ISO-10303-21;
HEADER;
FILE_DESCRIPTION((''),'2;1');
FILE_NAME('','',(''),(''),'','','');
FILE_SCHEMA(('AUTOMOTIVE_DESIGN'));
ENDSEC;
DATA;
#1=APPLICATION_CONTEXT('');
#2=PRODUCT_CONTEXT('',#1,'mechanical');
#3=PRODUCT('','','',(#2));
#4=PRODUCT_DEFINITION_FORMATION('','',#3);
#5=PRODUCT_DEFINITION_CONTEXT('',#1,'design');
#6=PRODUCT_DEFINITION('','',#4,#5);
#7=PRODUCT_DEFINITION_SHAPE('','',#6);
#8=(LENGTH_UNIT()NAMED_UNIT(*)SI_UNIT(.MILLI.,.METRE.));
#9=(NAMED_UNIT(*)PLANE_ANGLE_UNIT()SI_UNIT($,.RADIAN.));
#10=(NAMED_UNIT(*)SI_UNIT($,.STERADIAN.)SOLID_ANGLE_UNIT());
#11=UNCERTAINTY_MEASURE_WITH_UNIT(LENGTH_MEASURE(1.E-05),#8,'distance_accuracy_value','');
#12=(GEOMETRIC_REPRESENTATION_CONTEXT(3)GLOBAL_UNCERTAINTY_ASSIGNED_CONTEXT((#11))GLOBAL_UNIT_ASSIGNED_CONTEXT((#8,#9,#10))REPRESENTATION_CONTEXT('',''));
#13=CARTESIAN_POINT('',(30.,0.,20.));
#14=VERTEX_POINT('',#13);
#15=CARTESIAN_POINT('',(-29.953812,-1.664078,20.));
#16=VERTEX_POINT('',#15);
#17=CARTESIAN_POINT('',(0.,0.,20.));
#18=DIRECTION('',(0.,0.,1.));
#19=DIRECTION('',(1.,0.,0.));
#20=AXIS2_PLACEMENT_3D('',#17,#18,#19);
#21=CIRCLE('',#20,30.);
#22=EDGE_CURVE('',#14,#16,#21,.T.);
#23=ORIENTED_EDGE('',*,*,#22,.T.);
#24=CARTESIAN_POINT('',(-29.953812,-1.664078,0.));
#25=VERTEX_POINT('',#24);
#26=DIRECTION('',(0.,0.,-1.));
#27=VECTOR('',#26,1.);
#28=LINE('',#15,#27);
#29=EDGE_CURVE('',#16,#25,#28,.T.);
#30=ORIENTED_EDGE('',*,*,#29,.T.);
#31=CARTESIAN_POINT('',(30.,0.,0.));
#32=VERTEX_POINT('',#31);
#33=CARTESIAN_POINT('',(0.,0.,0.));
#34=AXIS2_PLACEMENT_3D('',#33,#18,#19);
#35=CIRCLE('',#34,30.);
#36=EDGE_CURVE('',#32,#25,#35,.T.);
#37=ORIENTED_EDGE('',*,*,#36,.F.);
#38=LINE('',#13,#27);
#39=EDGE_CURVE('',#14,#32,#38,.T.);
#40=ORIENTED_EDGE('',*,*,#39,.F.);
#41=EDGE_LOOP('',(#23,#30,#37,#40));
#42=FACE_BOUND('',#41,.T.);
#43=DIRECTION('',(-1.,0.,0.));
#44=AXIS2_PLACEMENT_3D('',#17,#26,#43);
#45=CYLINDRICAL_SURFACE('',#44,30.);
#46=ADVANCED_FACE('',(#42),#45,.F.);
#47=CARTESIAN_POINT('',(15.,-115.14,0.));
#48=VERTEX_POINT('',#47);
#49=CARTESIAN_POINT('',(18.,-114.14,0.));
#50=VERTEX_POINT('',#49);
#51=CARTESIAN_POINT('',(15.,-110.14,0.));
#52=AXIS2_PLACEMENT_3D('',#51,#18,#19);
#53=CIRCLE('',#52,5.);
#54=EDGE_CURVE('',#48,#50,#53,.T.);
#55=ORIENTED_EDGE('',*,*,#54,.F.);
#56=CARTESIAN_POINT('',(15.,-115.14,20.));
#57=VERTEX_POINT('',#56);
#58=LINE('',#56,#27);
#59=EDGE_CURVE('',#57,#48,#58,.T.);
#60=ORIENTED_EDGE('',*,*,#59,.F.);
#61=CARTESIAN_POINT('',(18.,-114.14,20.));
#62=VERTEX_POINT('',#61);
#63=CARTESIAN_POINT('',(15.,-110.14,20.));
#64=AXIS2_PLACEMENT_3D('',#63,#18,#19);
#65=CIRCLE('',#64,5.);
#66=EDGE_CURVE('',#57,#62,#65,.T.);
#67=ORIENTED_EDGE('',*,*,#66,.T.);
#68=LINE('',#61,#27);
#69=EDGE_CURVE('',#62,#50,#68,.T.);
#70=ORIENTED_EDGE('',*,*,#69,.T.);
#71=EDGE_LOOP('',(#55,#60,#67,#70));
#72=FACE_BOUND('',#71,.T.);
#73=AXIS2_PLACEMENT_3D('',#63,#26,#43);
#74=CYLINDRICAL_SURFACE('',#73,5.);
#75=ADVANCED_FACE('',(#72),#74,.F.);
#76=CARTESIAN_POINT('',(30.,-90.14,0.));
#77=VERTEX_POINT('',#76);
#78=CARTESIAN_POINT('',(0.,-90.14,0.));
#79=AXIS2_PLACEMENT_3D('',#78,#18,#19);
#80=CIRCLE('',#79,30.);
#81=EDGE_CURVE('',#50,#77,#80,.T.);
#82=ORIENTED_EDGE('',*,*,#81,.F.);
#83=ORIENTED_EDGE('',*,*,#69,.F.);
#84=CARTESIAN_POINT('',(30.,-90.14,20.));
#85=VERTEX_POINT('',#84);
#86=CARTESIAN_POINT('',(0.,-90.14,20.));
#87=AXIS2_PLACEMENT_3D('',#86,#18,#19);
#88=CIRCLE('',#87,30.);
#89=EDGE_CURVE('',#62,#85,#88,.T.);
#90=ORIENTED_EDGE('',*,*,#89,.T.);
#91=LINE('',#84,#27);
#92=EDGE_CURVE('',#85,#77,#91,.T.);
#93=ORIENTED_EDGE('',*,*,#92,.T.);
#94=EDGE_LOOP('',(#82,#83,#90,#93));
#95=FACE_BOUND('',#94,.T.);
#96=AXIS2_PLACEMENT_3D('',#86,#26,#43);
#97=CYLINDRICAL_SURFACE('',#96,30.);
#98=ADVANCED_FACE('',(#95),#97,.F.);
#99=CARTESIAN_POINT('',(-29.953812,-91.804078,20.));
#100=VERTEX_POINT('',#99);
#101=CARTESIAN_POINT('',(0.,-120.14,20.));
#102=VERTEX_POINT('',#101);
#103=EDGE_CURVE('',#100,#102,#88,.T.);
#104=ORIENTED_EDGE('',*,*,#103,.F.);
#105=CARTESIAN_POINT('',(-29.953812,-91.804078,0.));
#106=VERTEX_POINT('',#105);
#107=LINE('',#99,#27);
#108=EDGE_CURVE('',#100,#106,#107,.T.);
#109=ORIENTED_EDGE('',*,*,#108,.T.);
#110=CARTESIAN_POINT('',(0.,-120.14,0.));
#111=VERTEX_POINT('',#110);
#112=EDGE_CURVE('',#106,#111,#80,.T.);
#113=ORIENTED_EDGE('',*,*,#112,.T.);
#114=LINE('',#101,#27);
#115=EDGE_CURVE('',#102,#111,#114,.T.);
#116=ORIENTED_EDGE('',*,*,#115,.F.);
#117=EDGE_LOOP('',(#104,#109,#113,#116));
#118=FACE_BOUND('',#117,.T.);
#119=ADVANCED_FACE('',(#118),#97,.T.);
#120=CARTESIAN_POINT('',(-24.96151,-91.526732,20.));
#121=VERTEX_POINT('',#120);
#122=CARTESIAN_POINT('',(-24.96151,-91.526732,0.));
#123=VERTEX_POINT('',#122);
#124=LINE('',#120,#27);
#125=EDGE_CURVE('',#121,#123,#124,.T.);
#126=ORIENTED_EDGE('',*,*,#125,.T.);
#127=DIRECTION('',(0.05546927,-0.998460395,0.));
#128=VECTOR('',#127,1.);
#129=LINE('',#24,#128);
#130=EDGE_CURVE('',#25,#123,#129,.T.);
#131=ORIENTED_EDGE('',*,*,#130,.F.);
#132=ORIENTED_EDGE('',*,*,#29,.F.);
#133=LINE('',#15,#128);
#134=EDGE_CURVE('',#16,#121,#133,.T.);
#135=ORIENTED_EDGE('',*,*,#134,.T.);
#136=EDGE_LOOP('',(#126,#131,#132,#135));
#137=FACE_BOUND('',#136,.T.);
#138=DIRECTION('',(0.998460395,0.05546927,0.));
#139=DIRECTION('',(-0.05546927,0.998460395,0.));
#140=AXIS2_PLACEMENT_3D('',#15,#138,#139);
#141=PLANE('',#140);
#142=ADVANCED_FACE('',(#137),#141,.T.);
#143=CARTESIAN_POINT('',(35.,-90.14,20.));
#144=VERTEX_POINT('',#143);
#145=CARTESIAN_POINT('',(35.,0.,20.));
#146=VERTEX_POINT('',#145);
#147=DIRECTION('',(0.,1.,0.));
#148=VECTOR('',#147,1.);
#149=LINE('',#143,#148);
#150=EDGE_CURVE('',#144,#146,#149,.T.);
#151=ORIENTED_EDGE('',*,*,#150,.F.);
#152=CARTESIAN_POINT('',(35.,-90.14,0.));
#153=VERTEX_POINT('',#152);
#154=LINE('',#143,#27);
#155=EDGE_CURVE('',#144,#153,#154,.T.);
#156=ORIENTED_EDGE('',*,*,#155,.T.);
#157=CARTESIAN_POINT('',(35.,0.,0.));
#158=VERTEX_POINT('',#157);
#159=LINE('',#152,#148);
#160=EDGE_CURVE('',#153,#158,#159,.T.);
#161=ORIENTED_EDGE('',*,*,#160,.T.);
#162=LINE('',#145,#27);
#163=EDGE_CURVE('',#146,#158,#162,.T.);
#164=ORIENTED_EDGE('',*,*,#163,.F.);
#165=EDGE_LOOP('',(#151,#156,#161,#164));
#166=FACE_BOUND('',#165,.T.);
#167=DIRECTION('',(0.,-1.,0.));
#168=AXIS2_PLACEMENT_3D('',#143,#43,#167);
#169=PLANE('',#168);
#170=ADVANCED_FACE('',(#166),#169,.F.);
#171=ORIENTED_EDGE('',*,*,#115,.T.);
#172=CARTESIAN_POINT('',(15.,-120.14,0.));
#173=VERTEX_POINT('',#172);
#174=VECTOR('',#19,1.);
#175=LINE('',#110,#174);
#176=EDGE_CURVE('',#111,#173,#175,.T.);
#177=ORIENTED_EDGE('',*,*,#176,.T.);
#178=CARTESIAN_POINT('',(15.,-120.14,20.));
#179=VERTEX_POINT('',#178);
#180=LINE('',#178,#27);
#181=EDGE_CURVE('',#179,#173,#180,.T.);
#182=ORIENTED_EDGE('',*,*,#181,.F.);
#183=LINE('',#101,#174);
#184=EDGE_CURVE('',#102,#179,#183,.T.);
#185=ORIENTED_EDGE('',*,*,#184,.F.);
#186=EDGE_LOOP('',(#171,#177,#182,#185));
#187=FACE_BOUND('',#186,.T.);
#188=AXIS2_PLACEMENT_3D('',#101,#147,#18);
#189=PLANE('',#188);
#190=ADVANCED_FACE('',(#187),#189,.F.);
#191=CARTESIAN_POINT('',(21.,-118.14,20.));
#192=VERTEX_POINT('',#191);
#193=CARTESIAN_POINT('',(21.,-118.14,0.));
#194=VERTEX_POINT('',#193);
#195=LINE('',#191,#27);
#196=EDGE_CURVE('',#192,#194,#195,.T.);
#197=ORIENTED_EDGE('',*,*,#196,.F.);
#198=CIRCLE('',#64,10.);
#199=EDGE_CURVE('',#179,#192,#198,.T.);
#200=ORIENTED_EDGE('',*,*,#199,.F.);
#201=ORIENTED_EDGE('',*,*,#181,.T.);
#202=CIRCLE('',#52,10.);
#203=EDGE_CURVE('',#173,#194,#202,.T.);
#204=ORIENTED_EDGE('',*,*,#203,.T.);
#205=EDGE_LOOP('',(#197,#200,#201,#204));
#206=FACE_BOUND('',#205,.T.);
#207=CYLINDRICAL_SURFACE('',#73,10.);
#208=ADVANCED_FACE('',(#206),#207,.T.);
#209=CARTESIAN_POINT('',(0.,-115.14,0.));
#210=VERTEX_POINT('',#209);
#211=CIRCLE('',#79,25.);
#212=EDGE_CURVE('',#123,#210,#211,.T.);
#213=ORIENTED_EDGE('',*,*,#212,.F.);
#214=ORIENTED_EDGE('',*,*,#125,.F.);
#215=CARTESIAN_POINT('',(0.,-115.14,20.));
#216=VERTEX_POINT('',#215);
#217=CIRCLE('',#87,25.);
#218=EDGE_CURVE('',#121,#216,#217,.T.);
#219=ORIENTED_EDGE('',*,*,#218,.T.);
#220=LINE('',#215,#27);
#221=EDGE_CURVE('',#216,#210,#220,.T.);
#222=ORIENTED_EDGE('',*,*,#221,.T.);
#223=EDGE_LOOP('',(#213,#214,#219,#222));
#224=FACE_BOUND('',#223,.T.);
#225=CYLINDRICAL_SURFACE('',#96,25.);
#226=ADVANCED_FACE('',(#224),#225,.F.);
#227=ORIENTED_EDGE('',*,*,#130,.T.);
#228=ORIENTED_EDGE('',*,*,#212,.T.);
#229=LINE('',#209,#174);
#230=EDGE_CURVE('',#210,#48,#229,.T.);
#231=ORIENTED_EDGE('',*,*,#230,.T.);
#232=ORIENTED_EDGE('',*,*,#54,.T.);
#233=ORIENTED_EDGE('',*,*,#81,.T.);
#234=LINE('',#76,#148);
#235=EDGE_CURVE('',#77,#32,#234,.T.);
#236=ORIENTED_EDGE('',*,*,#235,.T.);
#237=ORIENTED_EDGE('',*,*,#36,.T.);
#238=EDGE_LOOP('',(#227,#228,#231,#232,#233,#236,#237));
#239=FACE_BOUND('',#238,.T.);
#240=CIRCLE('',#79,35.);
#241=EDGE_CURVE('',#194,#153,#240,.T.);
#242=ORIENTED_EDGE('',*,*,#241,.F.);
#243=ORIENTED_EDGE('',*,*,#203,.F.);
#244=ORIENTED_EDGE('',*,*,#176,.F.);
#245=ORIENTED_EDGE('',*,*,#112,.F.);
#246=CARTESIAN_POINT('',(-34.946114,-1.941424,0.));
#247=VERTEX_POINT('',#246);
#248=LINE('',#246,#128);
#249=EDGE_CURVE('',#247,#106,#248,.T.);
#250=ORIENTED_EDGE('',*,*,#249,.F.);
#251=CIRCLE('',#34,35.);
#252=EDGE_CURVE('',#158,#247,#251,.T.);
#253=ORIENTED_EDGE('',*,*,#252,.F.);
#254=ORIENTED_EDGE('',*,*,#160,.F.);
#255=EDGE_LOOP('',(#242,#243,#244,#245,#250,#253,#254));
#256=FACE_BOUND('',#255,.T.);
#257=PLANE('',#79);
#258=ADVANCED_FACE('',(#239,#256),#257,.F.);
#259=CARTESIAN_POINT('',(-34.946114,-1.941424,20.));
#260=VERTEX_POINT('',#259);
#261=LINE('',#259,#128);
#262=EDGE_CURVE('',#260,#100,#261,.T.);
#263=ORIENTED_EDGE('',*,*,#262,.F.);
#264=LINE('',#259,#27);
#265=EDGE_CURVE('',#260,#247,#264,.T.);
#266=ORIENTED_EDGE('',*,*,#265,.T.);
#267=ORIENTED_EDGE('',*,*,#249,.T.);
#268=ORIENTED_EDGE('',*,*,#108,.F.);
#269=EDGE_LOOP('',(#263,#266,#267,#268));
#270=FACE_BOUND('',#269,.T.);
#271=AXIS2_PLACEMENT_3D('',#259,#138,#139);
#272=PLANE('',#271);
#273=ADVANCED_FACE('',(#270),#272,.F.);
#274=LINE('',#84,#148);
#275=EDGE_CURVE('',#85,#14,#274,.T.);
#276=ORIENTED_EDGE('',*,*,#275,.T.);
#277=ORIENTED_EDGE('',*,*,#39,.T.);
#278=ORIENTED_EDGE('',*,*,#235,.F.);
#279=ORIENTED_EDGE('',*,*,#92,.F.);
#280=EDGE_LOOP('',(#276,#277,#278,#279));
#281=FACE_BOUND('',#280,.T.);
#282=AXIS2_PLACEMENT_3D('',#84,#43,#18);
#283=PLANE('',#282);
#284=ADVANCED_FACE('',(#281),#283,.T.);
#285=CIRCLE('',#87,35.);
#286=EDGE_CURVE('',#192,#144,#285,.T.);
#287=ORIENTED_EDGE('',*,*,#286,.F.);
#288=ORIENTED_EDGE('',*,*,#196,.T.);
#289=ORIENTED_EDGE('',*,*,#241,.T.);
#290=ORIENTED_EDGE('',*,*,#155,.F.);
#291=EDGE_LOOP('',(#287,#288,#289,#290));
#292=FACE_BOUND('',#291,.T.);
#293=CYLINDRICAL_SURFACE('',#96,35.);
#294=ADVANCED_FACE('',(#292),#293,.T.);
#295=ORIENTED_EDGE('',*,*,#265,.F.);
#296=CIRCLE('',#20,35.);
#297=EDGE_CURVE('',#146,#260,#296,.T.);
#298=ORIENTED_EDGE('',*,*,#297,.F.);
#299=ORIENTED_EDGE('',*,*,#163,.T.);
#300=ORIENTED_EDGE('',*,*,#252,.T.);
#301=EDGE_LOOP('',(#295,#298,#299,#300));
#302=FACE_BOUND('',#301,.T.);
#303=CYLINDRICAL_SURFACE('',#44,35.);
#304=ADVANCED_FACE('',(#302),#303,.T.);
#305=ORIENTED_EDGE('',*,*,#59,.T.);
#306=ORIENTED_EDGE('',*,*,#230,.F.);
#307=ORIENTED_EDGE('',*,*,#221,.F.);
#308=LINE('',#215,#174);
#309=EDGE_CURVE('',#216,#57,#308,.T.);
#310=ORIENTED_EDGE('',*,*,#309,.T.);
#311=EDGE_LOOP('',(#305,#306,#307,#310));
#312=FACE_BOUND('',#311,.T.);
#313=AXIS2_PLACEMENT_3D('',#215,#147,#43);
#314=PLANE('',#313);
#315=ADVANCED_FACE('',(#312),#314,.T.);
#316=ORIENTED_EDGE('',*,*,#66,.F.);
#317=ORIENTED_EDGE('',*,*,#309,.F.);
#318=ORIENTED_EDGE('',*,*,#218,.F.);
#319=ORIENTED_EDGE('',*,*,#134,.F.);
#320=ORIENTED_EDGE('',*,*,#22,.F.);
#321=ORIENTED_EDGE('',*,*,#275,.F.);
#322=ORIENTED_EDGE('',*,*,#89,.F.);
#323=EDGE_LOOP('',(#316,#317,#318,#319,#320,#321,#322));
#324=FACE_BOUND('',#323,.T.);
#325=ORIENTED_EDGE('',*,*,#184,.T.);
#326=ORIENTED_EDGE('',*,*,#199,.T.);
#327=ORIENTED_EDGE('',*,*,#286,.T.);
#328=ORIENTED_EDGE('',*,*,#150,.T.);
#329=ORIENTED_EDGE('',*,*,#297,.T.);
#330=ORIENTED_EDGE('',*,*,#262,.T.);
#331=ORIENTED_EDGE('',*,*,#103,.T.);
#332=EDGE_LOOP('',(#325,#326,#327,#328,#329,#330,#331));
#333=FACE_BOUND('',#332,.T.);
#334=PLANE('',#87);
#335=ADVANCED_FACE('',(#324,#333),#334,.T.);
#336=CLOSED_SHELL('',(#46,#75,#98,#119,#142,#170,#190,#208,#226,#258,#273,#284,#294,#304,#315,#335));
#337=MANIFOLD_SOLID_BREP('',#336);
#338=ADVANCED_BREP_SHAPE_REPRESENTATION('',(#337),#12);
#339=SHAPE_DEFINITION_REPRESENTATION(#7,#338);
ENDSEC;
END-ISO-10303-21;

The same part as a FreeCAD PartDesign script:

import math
import FreeCAD as App
import Part
import Sketcher

V = App.Vector

doc = App.newDocument("Part")
body = doc.addObject("PartDesign::Body", "Body")

sketch1 = doc.addObject("Sketcher::SketchObject", "Sketch")
body.addObject(sketch1)
sketch1.AttachmentSupport = (doc.XY_Plane, [""])
sketch1.MapMode = "FlatFace"
sketch1.addGeometry(Part.LineSegment(V(35, -90.1, 0), V(35, 0, 0)), False)
sketch1.addGeometry(Part.ArcOfCircle(Part.Circle(V(0, 0, 0), V(0, 0, 1), 35), math.radians(0), math.radians(183)), False)
sketch1.addGeometry(Part.LineSegment(V(-34.9, -1.9, 0), V(-30, -91.8, 0)), False)
sketch1.addGeometry(Part.ArcOfCircle(Part.Circle(V(0, -90.1, 0), V(0, 0, 1), 30), math.radians(-177), math.radians(-90)), False)
sketch1.addGeometry(Part.LineSegment(V(0, -120.1, 0), V(15, -120.1, 0)), False)
sketch1.addGeometry(Part.ArcOfCircle(Part.Circle(V(15, -110.1, 0), V(0, 0, 1), 10), math.radians(-90), math.radians(-53)), False)
sketch1.addGeometry(Part.ArcOfCircle(Part.Circle(V(0, -90.1, 0), V(0, 0, 1), 35), math.radians(-53), math.radians(0)), False)
sketch1.addGeometry(Part.LineSegment(V(30, 0, 0), V(30, -90.1, 0)), False)
sketch1.addGeometry(Part.ArcOfCircle(Part.Circle(V(0, -90.1, 0), V(0, 0, 1), 30), math.radians(-53), math.radians(0)), False)
sketch1.addGeometry(Part.ArcOfCircle(Part.Circle(V(15, -110.1, 0), V(0, 0, 1), 5), math.radians(-90), math.radians(-53)), False)
sketch1.addGeometry(Part.LineSegment(V(15, -115.1, 0), V(0, -115.1, 0)), False)
sketch1.addGeometry(Part.ArcOfCircle(Part.Circle(V(0, -90.1, 0), V(0, 0, 1), 25), math.radians(-177), math.radians(-90)), False)
sketch1.addGeometry(Part.LineSegment(V(-25, -91.5, 0), V(-30, -1.7, 0)), False)
sketch1.addGeometry(Part.ArcOfCircle(Part.Circle(V(0, 0, 0), V(0, 0, 1), 30), math.radians(0), math.radians(183)), False)
sketch1.addConstraint(Sketcher.Constraint("Tangent", 0, 2, 1, 1))
sketch1.addConstraint(Sketcher.Constraint("Tangent", 1, 2, 2, 1))
sketch1.addConstraint(Sketcher.Constraint("Tangent", 2, 2, 3, 1))
sketch1.addConstraint(Sketcher.Constraint("Tangent", 3, 2, 4, 1))
sketch1.addConstraint(Sketcher.Constraint("Tangent", 4, 2, 5, 1))
sketch1.addConstraint(Sketcher.Constraint("Tangent", 5, 2, 6, 1))
sketch1.addConstraint(Sketcher.Constraint("Tangent", 6, 2, 0, 1))
sketch1.addConstraint(Sketcher.Constraint("Tangent", 7, 2, 8, 2))
sketch1.addConstraint(Sketcher.Constraint("Tangent", 8, 1, 9, 2))
sketch1.addConstraint(Sketcher.Constraint("Tangent", 9, 1, 10, 1))
sketch1.addConstraint(Sketcher.Constraint("Tangent", 10, 2, 11, 2))
sketch1.addConstraint(Sketcher.Constraint("Tangent", 11, 1, 12, 1))
sketch1.addConstraint(Sketcher.Constraint("Tangent", 12, 2, 13, 2))
sketch1.addConstraint(Sketcher.Constraint("Tangent", 13, 1, 7, 1))
sketch1.addConstraint(Sketcher.Constraint("Vertical", 0))
sketch1.addConstraint(Sketcher.Constraint("Horizontal", 4))
sketch1.addConstraint(Sketcher.Constraint("Vertical", 7))
sketch1.addConstraint(Sketcher.Constraint("Horizontal", 10))
sketch1.addConstraint(Sketcher.Constraint("Coincident", 1, 3, -1, 1))
sketch1.addConstraint(Sketcher.Constraint("Coincident", 13, 3, -1, 1))
sketch1.addConstraint(Sketcher.Constraint("Coincident", 6, 3, 3, 3))
sketch1.addConstraint(Sketcher.Constraint("Coincident", 8, 3, 3, 3))
sketch1.addConstraint(Sketcher.Constraint("Coincident", 9, 3, 5, 3))
sketch1.addConstraint(Sketcher.Constraint("Coincident", 11, 3, 3, 3))
sketch1.addConstraint(Sketcher.Constraint("Equal", 1, 6))
sketch1.addConstraint(Sketcher.Constraint("Equal", 3, 8))
sketch1.addConstraint(Sketcher.Constraint("Radius", 1, 35.0))
sketch1.addConstraint(Sketcher.Constraint("Radius", 3, 30.0))
sketch1.addConstraint(Sketcher.Constraint("Radius", 5, 10.0))
sketch1.addConstraint(Sketcher.Constraint("DistanceY", 0, 1, 0, 2, 90.14))
pad1 = doc.addObject("PartDesign::Pad", "Pad")
body.addObject(pad1)
pad1.Profile = sketch1
pad1.Length = 20

doc.recompute()
